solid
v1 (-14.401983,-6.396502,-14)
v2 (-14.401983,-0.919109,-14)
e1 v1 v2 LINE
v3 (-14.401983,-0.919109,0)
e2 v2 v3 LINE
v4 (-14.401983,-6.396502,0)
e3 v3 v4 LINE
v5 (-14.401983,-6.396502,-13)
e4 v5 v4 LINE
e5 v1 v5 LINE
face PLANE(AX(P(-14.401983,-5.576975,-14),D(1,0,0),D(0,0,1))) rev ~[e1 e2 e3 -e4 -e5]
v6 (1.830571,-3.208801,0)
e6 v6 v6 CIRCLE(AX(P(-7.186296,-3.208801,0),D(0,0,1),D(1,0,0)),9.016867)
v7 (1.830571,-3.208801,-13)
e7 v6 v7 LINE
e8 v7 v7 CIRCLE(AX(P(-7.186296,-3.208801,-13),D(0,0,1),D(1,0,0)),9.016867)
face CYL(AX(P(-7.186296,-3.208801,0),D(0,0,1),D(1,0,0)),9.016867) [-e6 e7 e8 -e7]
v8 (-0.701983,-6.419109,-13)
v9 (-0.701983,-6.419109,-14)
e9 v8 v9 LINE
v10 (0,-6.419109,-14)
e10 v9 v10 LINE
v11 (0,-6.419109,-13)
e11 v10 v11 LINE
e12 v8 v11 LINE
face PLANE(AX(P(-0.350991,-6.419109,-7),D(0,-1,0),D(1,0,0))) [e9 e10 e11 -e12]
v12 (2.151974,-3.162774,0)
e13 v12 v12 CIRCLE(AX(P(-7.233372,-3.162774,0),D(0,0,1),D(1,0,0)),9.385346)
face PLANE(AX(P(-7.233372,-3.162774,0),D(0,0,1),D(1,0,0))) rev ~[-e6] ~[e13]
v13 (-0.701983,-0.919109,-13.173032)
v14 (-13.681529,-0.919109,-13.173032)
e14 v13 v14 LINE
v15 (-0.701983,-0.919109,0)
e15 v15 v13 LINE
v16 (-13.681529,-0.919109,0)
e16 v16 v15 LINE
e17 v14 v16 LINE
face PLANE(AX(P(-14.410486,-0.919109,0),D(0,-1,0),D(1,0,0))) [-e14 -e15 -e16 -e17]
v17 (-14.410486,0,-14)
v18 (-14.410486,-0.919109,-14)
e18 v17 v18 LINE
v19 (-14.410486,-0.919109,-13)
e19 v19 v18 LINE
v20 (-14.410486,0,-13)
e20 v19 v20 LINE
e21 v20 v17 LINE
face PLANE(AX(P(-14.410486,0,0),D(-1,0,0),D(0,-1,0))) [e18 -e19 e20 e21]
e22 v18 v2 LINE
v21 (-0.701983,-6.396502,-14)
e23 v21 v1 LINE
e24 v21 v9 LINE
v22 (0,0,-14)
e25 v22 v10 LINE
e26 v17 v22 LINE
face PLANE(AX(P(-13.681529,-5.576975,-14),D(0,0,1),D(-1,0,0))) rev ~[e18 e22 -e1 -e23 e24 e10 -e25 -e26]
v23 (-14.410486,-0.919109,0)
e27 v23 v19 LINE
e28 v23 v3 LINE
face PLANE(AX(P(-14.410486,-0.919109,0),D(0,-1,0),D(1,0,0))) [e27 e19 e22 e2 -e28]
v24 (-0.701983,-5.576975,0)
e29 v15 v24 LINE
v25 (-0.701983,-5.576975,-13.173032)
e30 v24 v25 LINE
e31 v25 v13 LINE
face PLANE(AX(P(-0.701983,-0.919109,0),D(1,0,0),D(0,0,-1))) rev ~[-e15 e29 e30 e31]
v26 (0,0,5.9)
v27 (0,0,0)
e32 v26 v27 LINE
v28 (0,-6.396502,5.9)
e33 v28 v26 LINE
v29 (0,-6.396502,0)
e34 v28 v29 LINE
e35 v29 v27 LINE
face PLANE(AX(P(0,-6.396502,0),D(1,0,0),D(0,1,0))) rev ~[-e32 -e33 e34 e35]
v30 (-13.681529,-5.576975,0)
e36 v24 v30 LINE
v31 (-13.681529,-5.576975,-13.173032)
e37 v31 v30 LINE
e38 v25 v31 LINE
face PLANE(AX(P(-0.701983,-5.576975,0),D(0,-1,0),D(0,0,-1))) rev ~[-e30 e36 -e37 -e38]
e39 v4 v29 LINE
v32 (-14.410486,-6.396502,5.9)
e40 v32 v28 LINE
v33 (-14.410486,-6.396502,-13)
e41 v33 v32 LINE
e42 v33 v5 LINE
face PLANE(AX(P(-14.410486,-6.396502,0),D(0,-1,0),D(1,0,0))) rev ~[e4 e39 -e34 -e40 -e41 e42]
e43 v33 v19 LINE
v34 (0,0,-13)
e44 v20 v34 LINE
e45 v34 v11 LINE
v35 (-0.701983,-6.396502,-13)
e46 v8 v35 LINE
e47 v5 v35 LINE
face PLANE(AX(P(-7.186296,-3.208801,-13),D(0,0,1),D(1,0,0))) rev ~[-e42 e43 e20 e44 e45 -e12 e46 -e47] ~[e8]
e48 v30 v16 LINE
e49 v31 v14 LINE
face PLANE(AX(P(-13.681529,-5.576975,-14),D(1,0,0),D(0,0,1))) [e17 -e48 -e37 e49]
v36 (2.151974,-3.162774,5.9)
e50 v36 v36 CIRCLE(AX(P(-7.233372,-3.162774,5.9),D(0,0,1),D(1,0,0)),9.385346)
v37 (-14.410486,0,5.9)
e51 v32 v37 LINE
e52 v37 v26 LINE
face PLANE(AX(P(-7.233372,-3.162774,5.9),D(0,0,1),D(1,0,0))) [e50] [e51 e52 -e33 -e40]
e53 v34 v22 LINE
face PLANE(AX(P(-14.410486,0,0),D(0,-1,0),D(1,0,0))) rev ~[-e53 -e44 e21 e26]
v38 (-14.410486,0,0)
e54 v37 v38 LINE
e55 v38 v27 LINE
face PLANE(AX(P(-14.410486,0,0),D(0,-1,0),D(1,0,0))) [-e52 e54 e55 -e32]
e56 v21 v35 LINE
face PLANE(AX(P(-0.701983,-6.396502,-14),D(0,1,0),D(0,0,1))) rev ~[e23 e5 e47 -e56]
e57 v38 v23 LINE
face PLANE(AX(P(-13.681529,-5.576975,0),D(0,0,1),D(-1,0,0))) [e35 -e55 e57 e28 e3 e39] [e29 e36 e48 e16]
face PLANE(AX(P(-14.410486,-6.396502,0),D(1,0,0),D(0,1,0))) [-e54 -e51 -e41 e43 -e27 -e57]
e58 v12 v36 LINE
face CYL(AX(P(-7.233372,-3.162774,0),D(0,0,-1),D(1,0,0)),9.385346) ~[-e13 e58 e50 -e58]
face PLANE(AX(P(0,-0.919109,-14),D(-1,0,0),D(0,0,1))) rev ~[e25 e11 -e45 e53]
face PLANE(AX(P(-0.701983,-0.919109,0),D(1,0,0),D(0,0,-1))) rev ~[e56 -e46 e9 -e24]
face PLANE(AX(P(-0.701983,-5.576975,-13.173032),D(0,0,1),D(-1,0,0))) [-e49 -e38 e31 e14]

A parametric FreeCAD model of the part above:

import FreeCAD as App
import Part
import Sketcher

V = App.Vector
Q = App.Units.Quantity


def add_polygon(sketch, points):
    """Adds a closed chain of lines whose ends are joined by coincident constraints."""
    first, n = sketch.GeometryCount, len(points)
    for a, b in zip(points, points[1:] + points[:1]):
        sketch.addGeometry(Part.LineSegment(App.Vector(*a, 0), App.Vector(*b, 0)), False)
    for i in range(n):
        sketch.addConstraint(Sketcher.Constraint("Coincident", first + i, 2, first + (i + 1) % n, 1))

doc = App.newDocument("Part")
body = doc.addObject("PartDesign::Body", "Body")

# Sketch on XY plane
sketch1 = body.newObject("Sketcher::SketchObject", "Sketch")
sketch1.AttachmentSupport = (doc.getObject("XY_Plane"), [""])
sketch1.MapMode = "FlatFace"
sketch1.addGeometry(Part.Circle(V(-7, -3, 0), V(0, 0, 1), 9), False)  # 0
add_polygon(sketch1, [(0, -6), (-14, -6), (-14, 0), (0, 0)])  # lines 1-4
sketch1.addConstraint([
    Sketcher.Constraint("Horizontal", 1),
    Sketcher.Constraint("Vertical", 2),
    Sketcher.Constraint("Horizontal", 3),
    Sketcher.Constraint("Vertical", 4),
    Sketcher.Constraint("Coincident", 3, 2, -1, 1),
    Sketcher.Constraint("Diameter", 0, Q("18.770691 mm")),
    Sketcher.Constraint("DistanceX", 1, 2, 1, 1, Q("14.410486 mm")),
    Sketcher.Constraint("DistanceY", 2, 1, 2, 2, Q("6.396502 mm")),
    Sketcher.Constraint("DistanceX", 0, 3, -1, 1, Q("7.233372 mm")),
    Sketcher.Constraint("DistanceY", 1, 2, 0, 3, Q("3.233728 mm")),
])
pad1 = body.newObject("PartDesign::Pad", "Pad")
pad1.Profile = sketch1
pad1.Length = 5.9

# Sketch on XY plane
sketch2 = body.newObject("Sketcher::SketchObject", "Sketch001")
sketch2.AttachmentSupport = (doc.getObject("XY_Plane"), [""])
sketch2.MapMode = "FlatFace"
sketch2.addGeometry(Part.Circle(V(-7, -3, 0), V(0, 0, 1), 9), False)  # 0
add_polygon(sketch2, [(0, -6), (-14, -6), (-14, 0), (0, 0)])  # lines 1-4
sketch2.addConstraint([
    Sketcher.Constraint("Horizontal", 1),
    Sketcher.Constraint("Vertical", 2),
    Sketcher.Constraint("Horizontal", 3),
    Sketcher.Constraint("Vertical", 4),
    Sketcher.Constraint("Coincident", 3, 2, -1, 1),
    Sketcher.Constraint("Diameter", 0, Q("18.033735 mm")),
    Sketcher.Constraint("DistanceY", 0, 3, -1, 1, Q("3.208801 mm")),
    Sketcher.Constraint("DistanceY", 1, 2, 0, 3, Q("3.187701 mm")),
    Sketcher.Constraint("DistanceX", 1, 2, 1, 1, Q("14.410486 mm")),
    Sketcher.Constraint("DistanceX", 1, 2, 0, 3, Q("7.22419 mm")),
])
pad2 = body.newObject("PartDesign::Pad", "Pad001")
pad2.Profile = sketch2
pad2.Length = 13
pad2.Reversed = True

# Sketch on XY plane
sketch3 = body.newObject("Sketcher::SketchObject", "Sketch002")
sketch3.AttachmentSupport = (doc.getObject("XY_Plane"), [""])
sketch3.MapMode = "FlatFace"
add_polygon(sketch3, [(-14.4, -0.9), (-14.4, 0), (0, 0), (0, -0.9)])  # lines 0-3
sketch3.addConstraint([
    Sketcher.Constraint("Vertical", 0),
    Sketcher.Constraint("Horizontal", 1),
    Sketcher.Constraint("Vertical", 2),
    Sketcher.Constraint("Horizontal", 3),
    Sketcher.Constraint("Coincident", 1, 2, -1, 1),
    Sketcher.Constraint("DistanceY", 0, 1, 0, 2, Q("0.919109 mm")),
    Sketcher.Constraint("DistanceX", 1, 1, 1, 2, Q("14.410486 mm")),
])
pad3 = body.newObject("PartDesign::Pad", "Pad002")
pad3.Profile = sketch3
pad3.Length = 14
pad3.Reversed = True

# Sketch on XZ plane
sketch4 = body.newObject("Sketcher::SketchObject", "Sketch003")
sketch4.AttachmentSupport = (doc.getObject("XZ_Plane"), [""])
sketch4.MapMode = "FlatFace"
sketch4.AttachmentOffset = App.Placement(V(0, 0, 0.919109), App.Rotation())
add_polygon(sketch4, [(-0.7, -14), (0, -14), (0, 0), (-0.7, 0)])  # lines 0-3
sketch4.addConstraint([
    Sketcher.Constraint("Horizontal", 0),
    Sketcher.Constraint("Vertical", 1),
    Sketcher.Constraint("Horizontal", 2),
    Sketcher.Constraint("Vertical", 3),
    Sketcher.Constraint("Coincident", 1, 2, -1, 1),
    Sketcher.Constraint("DistanceY", 1, 1, 1, 2, Q("14 mm")),
    Sketcher.Constraint("DistanceX", 0, 1, 0, 2, Q("0.701983 mm")),
])
pad4 = body.newObject("PartDesign::Pad", "Pad003")
pad4.Profile = sketch4
pad4.Length = 5.5

# Sketch on YZ plane
sketch5 = body.newObject("Sketcher::SketchObject", "Sketch004")
sketch5.AttachmentSupport = (doc.getObject("YZ_Plane"), [""])
sketch5.MapMode = "FlatFace"
sketch5.AttachmentOffset = App.Placement(V(0, 0, -0.701983), App.Rotation())
add_polygon(sketch5, [(-6.4, 0), (-5.6, 0), (-5.6, -14), (-6.4, -14)])  # lines 0-3
sketch5.addConstraint([
    Sketcher.Constraint("Horizontal", 0),
    Sketcher.Constraint("Vertical", 1),
    Sketcher.Constraint("Horizontal", 2),
    Sketcher.Constraint("Vertical", 3),
    Sketcher.Constraint("PointOnObject", 0, 2, -1),
    Sketcher.Constraint("DistanceY", 1, 2, 1, 1, Q("14 mm")),
    Sketcher.Constraint("DistanceX", 0, 1, 0, 2, Q("0.819527 mm")),
    Sketcher.Constraint("DistanceX", 0, 2, -1, 1, Q("5.576975 mm")),
])
pad5 = body.newObject("PartDesign::Pad", "Pad004")
pad5.Profile = sketch5
pad5.Length = 13.7
pad5.Reversed = True

# Sketch on XZ plane
sketch6 = body.newObject("Sketcher::SketchObject", "Sketch005")
sketch6.AttachmentSupport = (doc.getObject("XZ_Plane"), [""])
sketch6.MapMode = "FlatFace"
sketch6.AttachmentOffset = App.Placement(V(0, 0, 5.576975), App.Rotation())
add_polygon(sketch6, [(-13.7, 0), (-13.7, -14), (-14.4, -14), (-14.4, 0)])  # lines 0-3
sketch6.addConstraint([
    Sketcher.Constraint("Vertical", 0),
    Sketcher.Constraint("Horizontal", 1),
    Sketcher.Constraint("Vertical", 2),
    Sketcher.Constraint("Horizontal", 3),
    Sketcher.Constraint("PointOnObject", 2, 2, -1),
    Sketcher.Constraint("DistanceY", 0, 2, 0, 1, Q("14 mm")),
    Sketcher.Constraint("DistanceX", 1, 2, 1, 1, Q("0.720453 mm")),
    Sketcher.Constraint("DistanceX", 0, 2, -1, 1, Q("13.681529 mm")),
])
pad6 = body.newObject("PartDesign::Pad", "Pad005")
pad6.Profile = sketch6
pad6.Length = 5
pad6.Reversed = True

# Sketch on XZ plane
sketch7 = body.newObject("Sketcher::SketchObject", "Sketch006")
sketch7.AttachmentSupport = (doc.getObject("XZ_Plane"), [""])
sketch7.MapMode = "FlatFace"
sketch7.AttachmentOffset = App.Placement(V(0, 0, 5.576975), App.Rotation())
add_polygon(sketch7, [(-0.7, -13.2), (-0.7, -14), (-13.7, -14), (-13.7, -13.2)])  # lines 0-3
sketch7.addConstraint([
    Sketcher.Constraint("Vertical", 0),
    Sketcher.Constraint("Horizontal", 1),
    Sketcher.Constraint("Vertical", 2),
    Sketcher.Constraint("Horizontal", 3),
    Sketcher.Constraint("DistanceY", 0, 2, -1, 1, Q("14 mm")),
    Sketcher.Constraint("DistanceY", 0, 2, 0, 1, Q("0.826968 mm")),
    Sketcher.Constraint("DistanceX", 1, 2, 1, 1, Q("12.979547 mm")),
    Sketcher.Constraint("DistanceX", 1, 2, -1, 1, Q("13.681529 mm")),
])
pad7 = body.newObject("PartDesign::Pad", "Pad006")
pad7.Profile = sketch7
pad7.Length = 5
pad7.Reversed = True

doc.recompute()
